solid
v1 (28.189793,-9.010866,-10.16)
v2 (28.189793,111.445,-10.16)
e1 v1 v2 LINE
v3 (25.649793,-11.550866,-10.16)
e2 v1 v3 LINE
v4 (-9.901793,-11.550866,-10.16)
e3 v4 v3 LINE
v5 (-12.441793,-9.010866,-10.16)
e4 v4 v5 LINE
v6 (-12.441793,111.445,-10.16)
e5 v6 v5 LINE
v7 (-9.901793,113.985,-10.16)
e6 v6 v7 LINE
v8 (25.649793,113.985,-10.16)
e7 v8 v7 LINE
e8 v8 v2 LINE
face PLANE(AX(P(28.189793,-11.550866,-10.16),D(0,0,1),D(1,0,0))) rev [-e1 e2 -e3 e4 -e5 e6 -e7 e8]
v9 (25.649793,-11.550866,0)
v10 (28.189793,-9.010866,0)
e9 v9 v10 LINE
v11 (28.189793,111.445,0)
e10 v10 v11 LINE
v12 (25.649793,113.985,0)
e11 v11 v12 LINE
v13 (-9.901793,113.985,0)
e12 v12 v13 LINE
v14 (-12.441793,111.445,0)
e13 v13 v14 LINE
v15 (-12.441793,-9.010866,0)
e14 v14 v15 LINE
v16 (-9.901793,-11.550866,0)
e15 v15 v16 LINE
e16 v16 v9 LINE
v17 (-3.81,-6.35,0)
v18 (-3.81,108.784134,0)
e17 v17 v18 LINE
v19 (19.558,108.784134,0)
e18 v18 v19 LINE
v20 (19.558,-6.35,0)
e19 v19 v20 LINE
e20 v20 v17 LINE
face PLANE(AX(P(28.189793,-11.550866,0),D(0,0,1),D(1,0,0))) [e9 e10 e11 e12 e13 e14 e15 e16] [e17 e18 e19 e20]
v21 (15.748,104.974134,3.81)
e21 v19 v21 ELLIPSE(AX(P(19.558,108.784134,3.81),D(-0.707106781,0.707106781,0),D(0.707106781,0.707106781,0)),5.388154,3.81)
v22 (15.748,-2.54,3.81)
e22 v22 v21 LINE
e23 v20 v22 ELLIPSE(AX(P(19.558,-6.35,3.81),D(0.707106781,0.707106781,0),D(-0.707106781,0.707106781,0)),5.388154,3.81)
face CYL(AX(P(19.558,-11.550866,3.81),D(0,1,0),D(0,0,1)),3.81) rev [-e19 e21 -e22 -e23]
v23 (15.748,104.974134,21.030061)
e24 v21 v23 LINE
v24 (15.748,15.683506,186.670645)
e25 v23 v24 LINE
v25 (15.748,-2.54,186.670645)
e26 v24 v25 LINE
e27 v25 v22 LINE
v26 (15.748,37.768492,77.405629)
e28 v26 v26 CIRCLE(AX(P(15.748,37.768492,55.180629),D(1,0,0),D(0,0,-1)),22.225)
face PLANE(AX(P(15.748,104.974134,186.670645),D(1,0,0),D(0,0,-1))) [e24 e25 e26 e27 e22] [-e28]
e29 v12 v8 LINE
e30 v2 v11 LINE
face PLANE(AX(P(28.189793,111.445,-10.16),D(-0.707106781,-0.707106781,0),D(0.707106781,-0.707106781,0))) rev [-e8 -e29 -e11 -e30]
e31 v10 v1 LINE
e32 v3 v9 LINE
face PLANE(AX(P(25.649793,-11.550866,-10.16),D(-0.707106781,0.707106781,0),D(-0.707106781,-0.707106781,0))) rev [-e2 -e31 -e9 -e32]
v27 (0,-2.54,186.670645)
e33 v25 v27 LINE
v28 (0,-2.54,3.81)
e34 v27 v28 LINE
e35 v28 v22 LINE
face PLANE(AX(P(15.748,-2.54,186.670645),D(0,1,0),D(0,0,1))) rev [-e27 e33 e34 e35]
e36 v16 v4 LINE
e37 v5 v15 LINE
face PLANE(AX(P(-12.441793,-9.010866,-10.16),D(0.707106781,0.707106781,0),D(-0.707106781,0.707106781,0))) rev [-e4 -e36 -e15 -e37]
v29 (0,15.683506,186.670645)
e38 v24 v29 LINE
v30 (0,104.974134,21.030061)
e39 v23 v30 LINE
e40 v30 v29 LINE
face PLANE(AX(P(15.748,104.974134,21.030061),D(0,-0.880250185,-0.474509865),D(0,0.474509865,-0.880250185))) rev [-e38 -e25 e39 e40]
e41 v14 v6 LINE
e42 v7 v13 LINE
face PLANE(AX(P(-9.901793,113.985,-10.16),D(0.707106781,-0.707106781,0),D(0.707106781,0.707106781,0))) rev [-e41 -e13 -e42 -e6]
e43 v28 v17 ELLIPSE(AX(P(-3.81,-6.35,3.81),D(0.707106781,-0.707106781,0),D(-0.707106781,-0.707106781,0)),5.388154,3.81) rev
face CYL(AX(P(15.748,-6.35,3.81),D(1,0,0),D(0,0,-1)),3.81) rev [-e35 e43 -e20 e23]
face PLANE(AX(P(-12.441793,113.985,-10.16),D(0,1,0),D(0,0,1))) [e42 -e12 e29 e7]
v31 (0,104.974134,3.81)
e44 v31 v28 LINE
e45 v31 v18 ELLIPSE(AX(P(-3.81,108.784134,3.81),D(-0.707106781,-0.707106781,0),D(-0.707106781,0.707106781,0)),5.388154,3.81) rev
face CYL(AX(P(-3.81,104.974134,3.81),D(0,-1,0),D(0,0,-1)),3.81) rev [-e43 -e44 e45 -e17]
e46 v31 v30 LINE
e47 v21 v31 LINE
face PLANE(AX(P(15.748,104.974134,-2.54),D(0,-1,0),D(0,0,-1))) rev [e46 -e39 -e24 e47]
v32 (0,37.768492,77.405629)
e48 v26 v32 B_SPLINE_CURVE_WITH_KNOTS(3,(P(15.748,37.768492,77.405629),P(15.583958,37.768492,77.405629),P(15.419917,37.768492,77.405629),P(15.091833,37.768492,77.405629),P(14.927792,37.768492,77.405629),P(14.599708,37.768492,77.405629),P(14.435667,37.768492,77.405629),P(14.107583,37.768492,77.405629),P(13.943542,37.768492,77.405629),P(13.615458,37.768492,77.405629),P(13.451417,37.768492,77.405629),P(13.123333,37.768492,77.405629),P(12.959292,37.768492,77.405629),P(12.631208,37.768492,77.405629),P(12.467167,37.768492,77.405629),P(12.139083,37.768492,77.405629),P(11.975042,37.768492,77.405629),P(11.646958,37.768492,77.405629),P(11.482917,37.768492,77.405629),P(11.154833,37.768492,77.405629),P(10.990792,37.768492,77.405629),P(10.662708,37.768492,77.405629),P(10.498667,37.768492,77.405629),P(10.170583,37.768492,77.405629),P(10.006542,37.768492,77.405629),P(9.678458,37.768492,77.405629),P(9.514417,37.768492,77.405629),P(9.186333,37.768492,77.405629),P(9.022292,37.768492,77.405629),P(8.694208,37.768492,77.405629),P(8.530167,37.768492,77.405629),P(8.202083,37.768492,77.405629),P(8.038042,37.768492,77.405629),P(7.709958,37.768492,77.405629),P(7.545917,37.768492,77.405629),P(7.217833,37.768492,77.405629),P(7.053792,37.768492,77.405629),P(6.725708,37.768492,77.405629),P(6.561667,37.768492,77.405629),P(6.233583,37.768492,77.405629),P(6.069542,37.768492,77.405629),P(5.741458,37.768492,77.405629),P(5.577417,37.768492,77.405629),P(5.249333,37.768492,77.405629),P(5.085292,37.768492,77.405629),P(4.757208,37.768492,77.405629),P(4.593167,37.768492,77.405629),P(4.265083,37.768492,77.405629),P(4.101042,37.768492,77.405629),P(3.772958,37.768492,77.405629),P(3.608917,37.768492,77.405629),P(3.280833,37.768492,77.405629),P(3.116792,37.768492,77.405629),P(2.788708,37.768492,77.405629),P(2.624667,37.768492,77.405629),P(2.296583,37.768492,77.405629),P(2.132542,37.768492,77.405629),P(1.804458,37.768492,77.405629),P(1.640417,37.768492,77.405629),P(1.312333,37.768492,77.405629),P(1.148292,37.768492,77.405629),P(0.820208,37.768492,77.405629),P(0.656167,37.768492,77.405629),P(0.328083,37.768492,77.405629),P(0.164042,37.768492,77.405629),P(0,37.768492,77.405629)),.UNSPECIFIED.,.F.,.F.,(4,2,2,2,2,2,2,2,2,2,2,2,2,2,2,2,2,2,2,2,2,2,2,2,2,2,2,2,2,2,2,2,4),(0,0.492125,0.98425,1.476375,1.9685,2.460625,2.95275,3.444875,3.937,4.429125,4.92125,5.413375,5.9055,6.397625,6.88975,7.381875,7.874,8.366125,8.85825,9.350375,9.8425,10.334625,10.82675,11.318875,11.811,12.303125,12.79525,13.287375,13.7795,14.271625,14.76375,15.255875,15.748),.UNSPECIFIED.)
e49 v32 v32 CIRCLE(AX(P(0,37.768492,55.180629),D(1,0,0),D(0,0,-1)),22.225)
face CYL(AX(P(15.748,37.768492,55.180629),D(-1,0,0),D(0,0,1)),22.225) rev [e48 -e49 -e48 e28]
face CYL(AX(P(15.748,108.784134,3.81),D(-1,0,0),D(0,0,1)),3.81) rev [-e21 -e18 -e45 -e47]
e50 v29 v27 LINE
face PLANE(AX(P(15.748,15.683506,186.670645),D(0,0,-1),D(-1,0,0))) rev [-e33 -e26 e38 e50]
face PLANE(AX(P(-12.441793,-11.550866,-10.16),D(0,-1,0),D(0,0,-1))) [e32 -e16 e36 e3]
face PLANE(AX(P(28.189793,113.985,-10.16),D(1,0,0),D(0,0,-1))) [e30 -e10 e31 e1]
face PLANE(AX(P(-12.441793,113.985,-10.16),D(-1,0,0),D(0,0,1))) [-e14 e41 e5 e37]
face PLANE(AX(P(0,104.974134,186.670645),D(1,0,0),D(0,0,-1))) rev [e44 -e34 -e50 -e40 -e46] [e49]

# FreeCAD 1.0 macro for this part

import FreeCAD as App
import Part
import Sketcher
Q = App.Units.Quantity


def edges_at(feature, points):
    """Names of the edges that pass closest to the given points."""
    edges = feature.Shape.Edges
    near = lambda p: min(range(len(edges)), key=lambda i: edges[i].distToShape(Part.Vertex(*p))[0])
    return sorted({f"Edge{near(p) + 1}" for p in points})


def add_polygon(sketch, points):
    """Adds a closed chain of lines whose ends are joined by coincident constraints."""
    first, n = sketch.GeometryCount, len(points)
    for a, b in zip(points, points[1:] + points[:1]):
        sketch.addGeometry(Part.LineSegment(App.Vector(*a, 0), App.Vector(*b, 0)), False)
    for i in range(n):
        sketch.addConstraint(Sketcher.Constraint("Coincident", first + i, 2, first + (i + 1) % n, 1))

doc = App.newDocument("Part")
body = doc.addObject("PartDesign::Body", "Body")

sketch1 = body.newObject("Sketcher::SketchObject", "Sketch")
sketch1.AttachmentSupport = (doc.getObject("YZ_Plane"), [""])
sketch1.MapMode = "FlatFace"
add_polygon(sketch1, [(104.974134, 21.030061), (15.683506, 186.670645), (-2.54, 186.670645), (-2.54, -2.54), (104.974134, -2.54)])
sketch1.addConstraint(Sketcher.Constraint("Horizontal", 1))
sketch1.addConstraint(Sketcher.Constraint("Vertical", 2))
sketch1.addConstraint(Sketcher.Constraint("Horizontal", 3))
sketch1.addConstraint(Sketcher.Constraint("Vertical", 4))
sketch1.addConstraint(Sketcher.Constraint("DistanceX", 1, 2, -1, 1, Q("0.1 in")))
sketch1.addConstraint(Sketcher.Constraint("DistanceY", 2, 2, -1, 1, Q("0.1 in")))
sketch1.addConstraint(Sketcher.Constraint("DistanceY", 4, 1, 4, 2, Q("23.570061 mm")))
sketch1.addConstraint(Sketcher.Constraint("Distance", 0, Q("188.174439 mm")))
sketch1.addConstraint(Sketcher.Constraint("DistanceX", 1, 2, 1, 1, Q("18.223506 mm")))
sketch1.addConstraint(Sketcher.Constraint("DistanceX", 3, 1, 3, 2, Q("107.514134 mm")))
pad1 = body.newObject("PartDesign::Pad", "Pad")
pad1.Profile = sketch1
pad1.Length = Q("0.62 in")

sketch2 = body.newObject("Sketcher::SketchObject", "Sketch001")
sketch2.AttachmentSupport = (doc.getObject("YZ_Plane"), [""])
sketch2.MapMode = "FlatFace"
sketch2.addGeometry(Part.Circle(App.Vector(37.768492, 55.180629, 0), App.Vector(0, 0, 1), 22.225), False)
sketch2.addConstraint(Sketcher.Constraint("Diameter", 0, Q("1.75 in")))
sketch2.addConstraint(Sketcher.Constraint("DistanceY", -1, 1, 0, 3, Q("55.180629 mm")))
sketch2.addConstraint(Sketcher.Constraint("DistanceX", -1, 1, 0, 3, Q("37.768492 mm")))
pocket1 = body.newObject("PartDesign::Pocket", "Pocket")
pocket1.Profile = sketch2
pocket1.Type = "ThroughAll"
pocket1.Reversed = True

sketch3 = body.newObject("Sketcher::SketchObject", "Sketch002")
sketch3.AttachmentSupport = (doc.getObject("XY_Plane"), [""])
sketch3.MapMode = "FlatFace"
add_polygon(sketch3, [(-12.441793, 113.985), (-12.441793, -11.550866), (28.189793, -11.550866), (28.189793, 113.985)])
sketch3.addConstraint(Sketcher.Constraint("Vertical", 0))
sketch3.addConstraint(Sketcher.Constraint("Horizontal", 1))
sketch3.addConstraint(Sketcher.Constraint("Vertical", 2))
sketch3.addConstraint(Sketcher.Constraint("Horizontal", 3))
sketch3.addConstraint(Sketcher.Constraint("DistanceY", -1, 1, 2, 2, Q("113.985 mm")))
sketch3.addConstraint(Sketcher.Constraint("DistanceX", 1, 1, 1, 2, Q("40.631586 mm")))
sketch3.addConstraint(Sketcher.Constraint("DistanceY", 0, 2, 0, 1, Q("125.535865 mm")))
sketch3.addConstraint(Sketcher.Constraint("DistanceX", 0, 2, -1, 1, Q("12.441793 mm")))
pad2 = body.newObject("PartDesign::Pad", "Pad001")
pad2.Profile = sketch3
pad2.Length = Q("0.4 in")
pad2.Reversed = True
doc.recompute()

chamfer = body.newObject("PartDesign::Chamfer", "Chamfer")
chamfer.Base = (pad2, edges_at(pad2, [
    (28.19, 113.985, -5.08),
    (28.19, -11.551, -5.08),
    (-12.442, -11.551, -5.08),
    (-12.442, 113.985, -5.08),
]))
chamfer.Size = Q("0.1 in")
doc.recompute()

fillet = body.newObject("PartDesign::Fillet", "Fillet")
fillet.Base = (chamfer, edges_at(chamfer, [
    (7.874, -2.54, 0),
    (15.748, 51.217, 0),
    (7.874, 104.974, 0),
    (0, 51.217, 0),
]))
fillet.Radius = Q("0.15 in")

doc.recompute()
